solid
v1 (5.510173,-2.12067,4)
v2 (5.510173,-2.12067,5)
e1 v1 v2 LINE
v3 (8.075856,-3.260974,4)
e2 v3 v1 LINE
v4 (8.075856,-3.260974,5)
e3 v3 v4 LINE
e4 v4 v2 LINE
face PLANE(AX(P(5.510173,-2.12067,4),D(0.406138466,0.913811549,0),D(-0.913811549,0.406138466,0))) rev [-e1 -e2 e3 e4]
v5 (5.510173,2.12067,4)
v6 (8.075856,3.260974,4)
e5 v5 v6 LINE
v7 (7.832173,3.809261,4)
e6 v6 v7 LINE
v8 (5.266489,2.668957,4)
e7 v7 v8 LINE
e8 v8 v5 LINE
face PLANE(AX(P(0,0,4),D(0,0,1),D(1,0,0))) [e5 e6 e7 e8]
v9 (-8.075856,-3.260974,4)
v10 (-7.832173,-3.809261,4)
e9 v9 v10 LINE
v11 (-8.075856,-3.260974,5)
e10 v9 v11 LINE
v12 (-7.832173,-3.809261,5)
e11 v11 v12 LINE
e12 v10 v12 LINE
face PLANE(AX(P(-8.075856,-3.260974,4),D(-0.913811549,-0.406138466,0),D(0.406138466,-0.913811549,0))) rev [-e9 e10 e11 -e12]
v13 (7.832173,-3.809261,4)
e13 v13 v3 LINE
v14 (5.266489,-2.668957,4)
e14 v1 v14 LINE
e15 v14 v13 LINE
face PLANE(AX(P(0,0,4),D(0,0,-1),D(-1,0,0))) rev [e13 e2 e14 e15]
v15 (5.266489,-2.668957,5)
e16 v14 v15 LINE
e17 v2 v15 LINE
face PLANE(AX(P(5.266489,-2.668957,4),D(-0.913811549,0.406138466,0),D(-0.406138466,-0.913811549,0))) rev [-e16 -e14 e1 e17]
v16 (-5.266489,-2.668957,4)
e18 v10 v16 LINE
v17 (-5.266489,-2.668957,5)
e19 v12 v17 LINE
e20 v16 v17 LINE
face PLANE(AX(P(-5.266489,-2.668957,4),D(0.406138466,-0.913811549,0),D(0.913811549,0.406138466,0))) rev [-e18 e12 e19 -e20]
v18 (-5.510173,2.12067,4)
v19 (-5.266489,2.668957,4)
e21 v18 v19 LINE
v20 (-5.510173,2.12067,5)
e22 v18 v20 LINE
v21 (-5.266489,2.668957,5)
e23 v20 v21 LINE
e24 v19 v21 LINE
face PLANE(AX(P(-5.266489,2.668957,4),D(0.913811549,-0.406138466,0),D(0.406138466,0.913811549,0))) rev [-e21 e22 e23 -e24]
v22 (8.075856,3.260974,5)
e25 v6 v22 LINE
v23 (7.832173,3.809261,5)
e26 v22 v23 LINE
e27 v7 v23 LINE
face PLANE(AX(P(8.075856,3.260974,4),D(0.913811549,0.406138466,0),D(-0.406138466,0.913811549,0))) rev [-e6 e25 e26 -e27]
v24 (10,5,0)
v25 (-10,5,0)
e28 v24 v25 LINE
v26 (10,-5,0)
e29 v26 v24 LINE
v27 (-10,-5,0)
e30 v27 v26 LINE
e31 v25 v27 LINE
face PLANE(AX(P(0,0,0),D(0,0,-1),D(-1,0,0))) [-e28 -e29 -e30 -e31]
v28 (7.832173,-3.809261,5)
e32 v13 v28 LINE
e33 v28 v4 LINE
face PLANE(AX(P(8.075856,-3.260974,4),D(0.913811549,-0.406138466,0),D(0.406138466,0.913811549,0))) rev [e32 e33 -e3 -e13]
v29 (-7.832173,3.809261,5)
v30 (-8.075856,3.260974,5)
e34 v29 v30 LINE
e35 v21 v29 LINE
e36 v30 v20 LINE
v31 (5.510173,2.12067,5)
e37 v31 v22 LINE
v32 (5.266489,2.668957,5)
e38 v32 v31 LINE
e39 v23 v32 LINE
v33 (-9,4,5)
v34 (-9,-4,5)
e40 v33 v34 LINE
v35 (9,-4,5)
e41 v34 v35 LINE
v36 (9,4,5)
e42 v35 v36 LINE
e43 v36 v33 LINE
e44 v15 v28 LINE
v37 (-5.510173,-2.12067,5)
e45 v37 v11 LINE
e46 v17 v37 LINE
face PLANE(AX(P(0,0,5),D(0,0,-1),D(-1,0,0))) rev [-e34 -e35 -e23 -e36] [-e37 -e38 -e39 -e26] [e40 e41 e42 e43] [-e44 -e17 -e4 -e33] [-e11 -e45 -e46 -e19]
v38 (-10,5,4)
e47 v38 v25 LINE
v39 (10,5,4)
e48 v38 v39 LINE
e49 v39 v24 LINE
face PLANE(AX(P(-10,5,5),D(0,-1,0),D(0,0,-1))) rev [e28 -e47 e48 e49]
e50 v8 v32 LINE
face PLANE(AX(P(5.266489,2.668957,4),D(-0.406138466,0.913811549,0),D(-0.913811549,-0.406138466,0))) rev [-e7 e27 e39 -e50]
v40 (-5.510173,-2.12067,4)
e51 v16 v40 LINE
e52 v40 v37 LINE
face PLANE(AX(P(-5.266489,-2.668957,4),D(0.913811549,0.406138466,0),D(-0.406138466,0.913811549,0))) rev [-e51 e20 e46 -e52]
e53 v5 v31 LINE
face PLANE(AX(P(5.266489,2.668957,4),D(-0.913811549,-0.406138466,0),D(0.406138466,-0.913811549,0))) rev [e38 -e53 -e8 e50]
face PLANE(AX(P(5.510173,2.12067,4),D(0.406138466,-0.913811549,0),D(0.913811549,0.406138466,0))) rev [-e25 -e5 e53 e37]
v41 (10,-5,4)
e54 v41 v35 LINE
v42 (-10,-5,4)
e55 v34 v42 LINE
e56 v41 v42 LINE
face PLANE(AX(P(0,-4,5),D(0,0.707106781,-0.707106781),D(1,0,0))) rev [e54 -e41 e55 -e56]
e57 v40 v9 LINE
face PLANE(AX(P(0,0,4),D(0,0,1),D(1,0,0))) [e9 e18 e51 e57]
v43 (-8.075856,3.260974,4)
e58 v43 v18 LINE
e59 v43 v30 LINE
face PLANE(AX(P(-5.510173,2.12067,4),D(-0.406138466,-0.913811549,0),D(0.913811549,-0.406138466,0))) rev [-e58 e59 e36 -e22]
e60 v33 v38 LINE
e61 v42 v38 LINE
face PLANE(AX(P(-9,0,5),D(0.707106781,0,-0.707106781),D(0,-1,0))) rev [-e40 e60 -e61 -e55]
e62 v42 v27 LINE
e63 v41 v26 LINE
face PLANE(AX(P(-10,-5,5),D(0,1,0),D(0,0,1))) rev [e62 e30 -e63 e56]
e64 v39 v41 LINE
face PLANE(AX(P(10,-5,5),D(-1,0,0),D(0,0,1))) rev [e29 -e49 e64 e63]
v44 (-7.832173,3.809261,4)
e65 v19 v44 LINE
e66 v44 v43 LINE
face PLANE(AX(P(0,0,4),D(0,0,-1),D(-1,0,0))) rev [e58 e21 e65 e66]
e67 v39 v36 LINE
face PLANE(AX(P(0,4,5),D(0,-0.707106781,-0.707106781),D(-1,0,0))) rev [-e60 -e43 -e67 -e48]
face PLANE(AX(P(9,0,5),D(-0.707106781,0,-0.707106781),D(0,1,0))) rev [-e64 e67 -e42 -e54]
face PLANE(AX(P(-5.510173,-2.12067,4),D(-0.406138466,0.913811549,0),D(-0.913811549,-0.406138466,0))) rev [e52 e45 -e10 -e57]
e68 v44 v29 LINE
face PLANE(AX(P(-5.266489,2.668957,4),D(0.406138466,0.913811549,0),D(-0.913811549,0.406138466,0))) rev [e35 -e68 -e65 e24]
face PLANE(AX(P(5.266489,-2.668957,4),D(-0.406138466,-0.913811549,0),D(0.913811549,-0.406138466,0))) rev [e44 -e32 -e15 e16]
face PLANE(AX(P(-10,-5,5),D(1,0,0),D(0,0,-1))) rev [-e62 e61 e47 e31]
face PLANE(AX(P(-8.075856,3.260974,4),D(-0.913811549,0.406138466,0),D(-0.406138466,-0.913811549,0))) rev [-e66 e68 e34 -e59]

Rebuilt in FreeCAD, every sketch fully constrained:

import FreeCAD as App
import Part
import Sketcher

V = App.Vector


def edges_at(feature, points):
    """Names of the edges that pass closest to the given points."""
    edges = feature.Shape.Edges
    near = lambda p: min(range(len(edges)), key=lambda i: edges[i].distToShape(Part.Vertex(*p))[0])
    return sorted({f"Edge{near(p) + 1}" for p in points})

doc = App.newDocument("Part")
body = doc.addObject("PartDesign::Body", "Body")

# Sketch on XY plane
sketch1 = body.newObject("Sketcher::SketchObject", "Sketch")
sketch1.AttachmentSupport = (doc.getObject("XY_Plane"), [""])
sketch1.MapMode = "FlatFace"
sketch1.addGeometry(Part.LineSegment(V(-10, 5, 0), V(-10, -5, 0)), False)
sketch1.addGeometry(Part.LineSegment(V(-10, -5, 0), V(10, -5, 0)), False)
sketch1.addGeometry(Part.LineSegment(V(10, -5, 0), V(10, 5, 0)), False)
sketch1.addGeometry(Part.LineSegment(V(10, 5, 0), V(-10, 5, 0)), False)
sketch1.addConstraint(Sketcher.Constraint("Coincident", 0, 2, 1, 1))
sketch1.addConstraint(Sketcher.Constraint("Coincident", 1, 2, 2, 1))
sketch1.addConstraint(Sketcher.Constraint("Coincident", 2, 2, 3, 1))
sketch1.addConstraint(Sketcher.Constraint("Coincident", 3, 2, 0, 1))
sketch1.addConstraint(Sketcher.Constraint("Vertical", 0))
sketch1.addConstraint(Sketcher.Constraint("Horizontal", 1))
sketch1.addConstraint(Sketcher.Constraint("Vertical", 2))
sketch1.addConstraint(Sketcher.Constraint("Horizontal", 3))
sketch1.addConstraint(Sketcher.Constraint("Symmetric", 0, 2, 2, 2, -1, 1))
sketch1.addConstraint(Sketcher.Constraint("DistanceX", 1, 1, 1, 2, 20.0))
sketch1.addConstraint(Sketcher.Constraint("DistanceY", 0, 2, 0, 1, 10.0))
pad1 = body.newObject("PartDesign::Pad", "Pad")
pad1.Profile = sketch1
pad1.Length = 5
doc.recompute()

chamfer = body.newObject("PartDesign::Chamfer", "Chamfer")
chamfer.Base = (pad1, edges_at(pad1, [
    (-10, 0, 5),
    (0, -5, 5),
    (10, 0, 5),
    (0, 5, 5),
]))
chamfer.Size = 1

# Sketch on XY plane
sketch2 = body.newObject("Sketcher::SketchObject", "Sketch001")
sketch2.AttachmentSupport = (doc.getObject("XY_Plane"), [""])
sketch2.MapMode = "FlatFace"
sketch2.AttachmentOffset = App.Placement(V(0, 0, 5), App.Rotation())
sketch2.addGeometry(Part.LineSegment(V(-5.266489, -2.668957, 0), V(-5.510173, -2.12067, 0)), False)
sketch2.addGeometry(Part.LineSegment(V(-5.510173, -2.12067, 0), V(-8.075856, -3.260974, 0)), False)
sketch2.addGeometry(Part.LineSegment(V(-8.075856, -3.260974, 0), V(-7.832173, -3.809261, 0)), False)
sketch2.addGeometry(Part.LineSegment(V(-7.832173, -3.809261, 0), V(-5.266489, -2.668957, 0)), False)
sketch2.addGeometry(Part.LineSegment(V(-5.266489, 2.668957, 0), V(-7.832173, 3.809261, 0)), False)
sketch2.addGeometry(Part.LineSegment(V(-7.832173, 3.809261, 0), V(-8.075856, 3.260974, 0)), False)
sketch2.addGeometry(Part.LineSegment(V(-8.075856, 3.260974, 0), V(-5.510173, 2.12067, 0)), False)
sketch2.addGeometry(Part.LineSegment(V(-5.510173, 2.12067, 0), V(-5.266489, 2.668957, 0)), False)
sketch2.addGeometry(Part.LineSegment(V(5.266489, 2.668957, 0), V(5.510173, 2.12067, 0)), False)
sketch2.addGeometry(Part.LineSegment(V(5.510173, 2.12067, 0), V(8.075856, 3.260974, 0)), False)
sketch2.addGeometry(Part.LineSegment(V(8.075856, 3.260974, 0), V(7.832173, 3.809261, 0)), False)
sketch2.addGeometry(Part.LineSegment(V(7.832173, 3.809261, 0), V(5.266489, 2.668957, 0)), False)
sketch2.addGeometry(Part.LineSegment(V(5.266489, -2.668957, 0), V(7.832173, -3.809261, 0)), False)
sketch2.addGeometry(Part.LineSegment(V(7.832173, -3.809261, 0), V(8.075856, -3.260974, 0)), False)
sketch2.addGeometry(Part.LineSegment(V(8.075856, -3.260974, 0), V(5.510173, -2.12067, 0)), False)
sketch2.addGeometry(Part.LineSegment(V(5.510173, -2.12067, 0), V(5.266489, -2.668957, 0)), False)
sketch2.addConstraint(Sketcher.Constraint("Coincident", 0, 2, 1, 1))
sketch2.addConstraint(Sketcher.Constraint("Coincident", 1, 2, 2, 1))
sketch2.addConstraint(Sketcher.Constraint("Coincident", 2, 2, 3, 1))
sketch2.addConstraint(Sketcher.Constraint("Coincident", 3, 2, 0, 1))
sketch2.addConstraint(Sketcher.Constraint("Coincident", 4, 2, 5, 1))
sketch2.addConstraint(Sketcher.Constraint("Coincident", 5, 2, 6, 1))
sketch2.addConstraint(Sketcher.Constraint("Coincident", 6, 2, 7, 1))
sketch2.addConstraint(Sketcher.Constraint("Coincident", 7, 2, 4, 1))
sketch2.addConstraint(Sketcher.Constraint("Coincident", 8, 2, 9, 1))
sketch2.addConstraint(Sketcher.Constraint("Coincident", 9, 2, 10, 1))
sketch2.addConstraint(Sketcher.Constraint("Coincident", 10, 2, 11, 1))
sketch2.addConstraint(Sketcher.Constraint("Coincident", 11, 2, 8, 1))
sketch2.addConstraint(Sketcher.Constraint("Coincident", 12, 2, 13, 1))
sketch2.addConstraint(Sketcher.Constraint("Coincident", 13, 2, 14, 1))
sketch2.addConstraint(Sketcher.Constraint("Coincident", 14, 2, 15, 1))
sketch2.addConstraint(Sketcher.Constraint("Coincident", 15, 2, 12, 1))
sketch2.addConstraint(Sketcher.Constraint("Symmetric", 0, 2, 8, 2, -1, 1))
sketch2.addConstraint(Sketcher.Constraint("Symmetric", 1, 2, 9, 2, -1, 1))
sketch2.addConstraint(Sketcher.Constraint("Symmetric", 2, 2, 10, 2, -1, 1))
sketch2.addConstraint(Sketcher.Constraint("Symmetric", 3, 2, 11, 2, -1, 1))
sketch2.addConstraint(Sketcher.Constraint("Symmetric", 4, 2, 12, 2, -1, 1))
sketch2.addConstraint(Sketcher.Constraint("Symmetric", 5, 2, 13, 2, -1, 1))
sketch2.addConstraint(Sketcher.Constraint("Symmetric", 6, 2, 14, 2, -1, 1))
sketch2.addConstraint(Sketcher.Constraint("Symmetric", 7, 2, 15, 2, -1, 1))
sketch2.addConstraint(Sketcher.Constraint("Symmetric", 6, 2, 8, 2, -2))
sketch2.addConstraint(Sketcher.Constraint("Symmetric", 5, 2, 9, 2, -2))
sketch2.addConstraint(Sketcher.Constraint("Symmetric", 4, 2, 10, 2, -2))
sketch2.addConstraint(Sketcher.Constraint("Symmetric", 7, 2, 11, 2, -2))
sketch2.addConstraint(Sketcher.Constraint("Perpendicular", 0, 1))
sketch2.addConstraint(Sketcher.Constraint("Perpendicular", 1, 2))
sketch2.addConstraint(Sketcher.Constraint("Perpendicular", 2, 3))
sketch2.addConstraint(Sketcher.Constraint("Distance", 0, 0.6))
sketch2.addConstraint(Sketcher.Constraint("DistanceX", 2, 2, 0, 2, 2.322001))
sketch2.addConstraint(Sketcher.Constraint("DistanceY", 0, 2, -1, 1, 2.12067))
sketch2.addConstraint(Sketcher.Constraint("DistanceY", 2, 2, -1, 1, 3.809261))
sketch2.addConstraint(Sketcher.Constraint("DistanceX", 3, 2, -1, 1, 5.266489))
pocket1 = body.newObject("PartDesign::Pocket", "Pocket")
pocket1.Profile = sketch2
pocket1.Length = 1

doc.recompute()
